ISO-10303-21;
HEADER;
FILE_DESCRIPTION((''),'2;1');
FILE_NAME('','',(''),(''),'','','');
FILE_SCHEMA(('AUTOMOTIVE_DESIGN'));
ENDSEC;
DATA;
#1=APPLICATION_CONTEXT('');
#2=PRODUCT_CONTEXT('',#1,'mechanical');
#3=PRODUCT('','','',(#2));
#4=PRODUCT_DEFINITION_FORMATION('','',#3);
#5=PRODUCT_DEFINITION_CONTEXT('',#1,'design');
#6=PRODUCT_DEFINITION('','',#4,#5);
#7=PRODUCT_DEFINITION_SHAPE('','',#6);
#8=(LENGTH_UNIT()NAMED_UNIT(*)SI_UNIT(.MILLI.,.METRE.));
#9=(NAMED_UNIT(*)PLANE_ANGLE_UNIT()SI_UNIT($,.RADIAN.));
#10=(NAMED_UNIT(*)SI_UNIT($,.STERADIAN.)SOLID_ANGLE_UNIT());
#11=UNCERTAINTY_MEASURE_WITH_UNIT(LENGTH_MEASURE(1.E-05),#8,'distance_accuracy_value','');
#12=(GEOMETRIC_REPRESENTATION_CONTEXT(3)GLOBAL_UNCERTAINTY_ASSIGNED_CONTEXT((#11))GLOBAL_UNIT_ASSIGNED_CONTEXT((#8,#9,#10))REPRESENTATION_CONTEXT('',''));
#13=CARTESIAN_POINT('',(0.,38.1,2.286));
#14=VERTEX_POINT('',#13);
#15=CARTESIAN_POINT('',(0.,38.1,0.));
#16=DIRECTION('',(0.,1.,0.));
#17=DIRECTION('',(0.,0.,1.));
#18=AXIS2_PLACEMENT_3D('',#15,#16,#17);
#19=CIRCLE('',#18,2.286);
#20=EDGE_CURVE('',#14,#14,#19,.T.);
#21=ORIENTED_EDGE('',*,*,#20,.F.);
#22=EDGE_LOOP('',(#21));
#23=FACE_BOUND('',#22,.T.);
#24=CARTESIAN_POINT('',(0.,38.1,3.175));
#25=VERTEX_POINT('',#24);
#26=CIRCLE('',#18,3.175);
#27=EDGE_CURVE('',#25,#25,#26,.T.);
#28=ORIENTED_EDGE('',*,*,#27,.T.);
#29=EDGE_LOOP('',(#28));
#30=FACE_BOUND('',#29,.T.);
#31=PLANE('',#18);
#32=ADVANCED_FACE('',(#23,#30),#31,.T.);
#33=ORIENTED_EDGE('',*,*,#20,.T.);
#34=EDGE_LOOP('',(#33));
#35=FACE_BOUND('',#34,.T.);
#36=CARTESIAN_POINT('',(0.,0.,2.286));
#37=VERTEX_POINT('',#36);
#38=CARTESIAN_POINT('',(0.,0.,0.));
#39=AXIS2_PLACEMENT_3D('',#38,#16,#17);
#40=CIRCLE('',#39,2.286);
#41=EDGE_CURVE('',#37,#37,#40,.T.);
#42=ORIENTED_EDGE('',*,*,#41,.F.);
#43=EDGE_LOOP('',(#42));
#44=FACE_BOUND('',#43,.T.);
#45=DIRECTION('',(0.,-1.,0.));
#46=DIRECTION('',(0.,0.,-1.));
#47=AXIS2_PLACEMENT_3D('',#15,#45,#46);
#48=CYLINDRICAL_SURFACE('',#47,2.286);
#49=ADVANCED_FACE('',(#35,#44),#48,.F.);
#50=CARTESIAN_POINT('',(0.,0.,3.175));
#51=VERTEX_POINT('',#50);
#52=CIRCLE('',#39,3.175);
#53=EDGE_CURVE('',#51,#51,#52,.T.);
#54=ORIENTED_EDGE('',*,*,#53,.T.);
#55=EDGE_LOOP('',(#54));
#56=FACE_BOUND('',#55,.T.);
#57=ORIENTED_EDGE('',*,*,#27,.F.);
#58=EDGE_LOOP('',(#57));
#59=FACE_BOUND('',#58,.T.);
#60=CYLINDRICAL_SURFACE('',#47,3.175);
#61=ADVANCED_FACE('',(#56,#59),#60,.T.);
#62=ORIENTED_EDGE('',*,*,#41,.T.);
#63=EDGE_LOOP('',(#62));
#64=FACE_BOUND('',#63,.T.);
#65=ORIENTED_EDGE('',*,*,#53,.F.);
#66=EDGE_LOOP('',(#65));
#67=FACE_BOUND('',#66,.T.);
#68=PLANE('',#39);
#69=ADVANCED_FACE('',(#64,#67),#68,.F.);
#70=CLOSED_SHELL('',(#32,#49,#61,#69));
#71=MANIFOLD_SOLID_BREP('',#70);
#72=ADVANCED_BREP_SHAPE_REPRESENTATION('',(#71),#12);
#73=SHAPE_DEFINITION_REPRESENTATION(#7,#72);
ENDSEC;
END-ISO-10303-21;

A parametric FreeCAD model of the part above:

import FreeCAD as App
import Part
import Sketcher
from FreeCAD import Vector
Q = App.Units.Quantity

doc = App.newDocument("Part")
params = doc.addObject("Spreadsheet::Sheet", "Params")
for row, (alias, value) in enumerate([
    ("sketch1_diameter", "0.25 in"),
    ("sketch1_diameter2", "0.18 in"),
    ("pad1_length", "1.5 in"),
], start=1):
    params.set(f"A{row}", alias)
    params.set(f"B{row}", "=" + value)
    params.setAlias(f"B{row}", alias)

body = doc.addObject("PartDesign::Body", "Body")

# Sketch on XZ plane
sketch1 = body.newObject("Sketcher::SketchObject", "Sketch")
sketch1.AttachmentSupport = (doc.getObject("XZ_Plane"), [""])
sketch1.MapMode = "FlatFace"
sketch1.addGeometry(Part.Circle(Vector(0, 0, 0), Vector(0, 0, 1), 3.2), False)
sketch1.addGeometry(Part.Circle(Vector(0, 0, 0), Vector(0, 0, 1), 2.3), False)
sketch1.addConstraint(Sketcher.Constraint("Coincident", 0, 3, -1, 1))
sketch1.addConstraint(Sketcher.Constraint("Coincident", 1, 3, -1, 1))
sketch1.addConstraint(Sketcher.Constraint("Diameter", 0, Q("0.25 in")))
sketch1.addConstraint(Sketcher.Constraint("Diameter", 1, Q("0.18 in")))
sketch1.setExpression("Constraints[2]", "Params.sketch1_diameter")
sketch1.setExpression("Constraints[3]", "Params.sketch1_diameter2")
pad1 = body.newObject("PartDesign::Pad", "Pad")
pad1.Profile = sketch1
pad1.setExpression("Length", "Params.pad1_length")
pad1.Reversed = True

doc.recompute()
